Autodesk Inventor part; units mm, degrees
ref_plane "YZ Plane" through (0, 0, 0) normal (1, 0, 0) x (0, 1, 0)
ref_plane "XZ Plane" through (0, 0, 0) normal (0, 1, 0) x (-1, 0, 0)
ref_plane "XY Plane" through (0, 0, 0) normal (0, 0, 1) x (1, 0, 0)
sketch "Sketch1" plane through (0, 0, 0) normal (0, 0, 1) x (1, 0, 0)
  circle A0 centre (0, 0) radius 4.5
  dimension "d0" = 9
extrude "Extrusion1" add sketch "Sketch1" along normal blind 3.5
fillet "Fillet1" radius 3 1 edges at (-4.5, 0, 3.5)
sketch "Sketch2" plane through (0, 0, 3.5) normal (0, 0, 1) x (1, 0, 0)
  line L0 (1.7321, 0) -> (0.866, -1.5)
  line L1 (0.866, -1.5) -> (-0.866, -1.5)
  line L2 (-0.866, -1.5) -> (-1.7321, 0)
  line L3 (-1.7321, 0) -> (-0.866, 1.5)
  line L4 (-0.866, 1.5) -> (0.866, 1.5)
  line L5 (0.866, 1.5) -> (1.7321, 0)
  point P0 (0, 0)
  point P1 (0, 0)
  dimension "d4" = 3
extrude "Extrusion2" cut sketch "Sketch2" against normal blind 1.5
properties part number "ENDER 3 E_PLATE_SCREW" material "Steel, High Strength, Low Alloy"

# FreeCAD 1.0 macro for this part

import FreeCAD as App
import Part
import Sketcher
from FreeCAD import Vector


def edges_at(feature, points):
    """Names of the edges that pass closest to the given points."""
    edges = feature.Shape.Edges
    near = lambda p: min(range(len(edges)), key=lambda i: edges[i].distToShape(Part.Vertex(*p))[0])
    return sorted({f"Edge{near(p) + 1}" for p in points})

doc = App.newDocument("Part")
params = doc.addObject("Spreadsheet::Sheet", "Params")
for row, (alias, value) in enumerate([
    ("sketch1_diameter", "9 mm"),
    ("pad1_length", "3.5 mm"),
    ("fillet_radius", "3 mm"),
    ("pocket1_length", "1.5 mm"),
], start=1):
    params.set(f"A{row}", alias)
    params.set(f"B{row}", "=" + value)
    params.setAlias(f"B{row}", alias)

body = doc.addObject("PartDesign::Body", "Body")

# Sketch on XY plane
sketch1 = doc.addObject("Sketcher::SketchObject", "Sketch")
body.addObject(sketch1)
sketch1.AttachmentSupport = (doc.XY_Plane, [""])
sketch1.MapMode = "FlatFace"
sketch1.addGeometry(Part.Circle(Vector(0, 0, 0), Vector(0, 0, 1), 4.5), False)
sketch1.addConstraint(Sketcher.Constraint("Coincident", 0, 3, -1, 1))
sketch1.addConstraint(Sketcher.Constraint("Diameter", 0, 9.0))
sketch1.setExpression("Constraints[1]", "Params.sketch1_diameter")
pad1 = doc.addObject("PartDesign::Pad", "Pad")
body.addObject(pad1)
pad1.Profile = sketch1
pad1.setExpression("Length", "Params.pad1_length")
doc.recompute()

fillet = doc.addObject("PartDesign::Fillet", "Fillet")
body.addObject(fillet)
fillet.Base = (pad1, edges_at(pad1, [(-4.5, 0, 3.5)]))
fillet.setExpression("Radius", "Params.fillet_radius")

# Sketch on XY plane
sketch2 = doc.addObject("Sketcher::SketchObject", "Sketch001")
body.addObject(sketch2)
sketch2.AttachmentSupport = (doc.XY_Plane, [""])
sketch2.MapMode = "FlatFace"
sketch2.AttachmentOffset = App.Placement(Vector(0, 0, 3.5), App.Rotation())
sketch2.addGeometry(Part.LineSegment(Vector(0.9, -1.5, 0), Vector(1.7, 0, 0)), False)
sketch2.addGeometry(Part.LineSegment(Vector(1.7, 0, 0), Vector(0.9, 1.5, 0)), False)
sketch2.addGeometry(Part.LineSegment(Vector(0.9, 1.5, 0), Vector(-0.9, 1.5, 0)), False)
sketch2.addGeometry(Part.LineSegment(Vector(-0.9, 1.5, 0), Vector(-1.7, 0, 0)), False)
sketch2.addGeometry(Part.LineSegment(Vector(-1.7, 0, 0), Vector(-0.9, -1.5, 0)), False)
sketch2.addGeometry(Part.LineSegment(Vector(-0.9, -1.5, 0), Vector(0.9, -1.5, 0)), False)
sketch2.addConstraint(Sketcher.Constraint("Coincident", 0, 2, 1, 1))
sketch2.addConstraint(Sketcher.Constraint("Coincident", 1, 2, 2, 1))
sketch2.addConstraint(Sketcher.Constraint("Coincident", 2, 2, 3, 1))
sketch2.addConstraint(Sketcher.Constraint("Coincident", 3, 2, 4, 1))
sketch2.addConstraint(Sketcher.Constraint("Coincident", 4, 2, 5, 1))
sketch2.addConstraint(Sketcher.Constraint("Coincident", 5, 2, 0, 1))
sketch2.addConstraint(Sketcher.Constraint("Horizontal", 2))
sketch2.addConstraint(Sketcher.Constraint("Horizontal", 5))
sketch2.addConstraint(Sketcher.Constraint("Symmetric", 0, 2, 3, 2, -1, 1))
sketch2.addConstraint(Sketcher.Constraint("Symmetric", 1, 2, 4, 2, -1, 1))
sketch2.addConstraint(Sketcher.Constraint("PointOnObject", 0, 2, -1))
sketch2.addConstraint(Sketcher.Constraint("Parallel", 0, 3))
sketch2.addConstraint(Sketcher.Constraint("Vertical", 2, 2, 4, 2))
sketch2.addConstraint(Sketcher.Constraint("DistanceY", 4, 2, 2, 2, 3.0))
sketch2.addConstraint(Sketcher.Constraint("DistanceX", 2, 2, 2, 1, 1.732))
sketch2.addConstraint(Sketcher.Constraint("Distance", 0, 1.732))
pocket1 = doc.addObject("PartDesign::Pocket", "Pocket")
body.addObject(pocket1)
pocket1.Profile = sketch2
pocket1.setExpression("Length", "Params.pocket1_length")

doc.recompute()
